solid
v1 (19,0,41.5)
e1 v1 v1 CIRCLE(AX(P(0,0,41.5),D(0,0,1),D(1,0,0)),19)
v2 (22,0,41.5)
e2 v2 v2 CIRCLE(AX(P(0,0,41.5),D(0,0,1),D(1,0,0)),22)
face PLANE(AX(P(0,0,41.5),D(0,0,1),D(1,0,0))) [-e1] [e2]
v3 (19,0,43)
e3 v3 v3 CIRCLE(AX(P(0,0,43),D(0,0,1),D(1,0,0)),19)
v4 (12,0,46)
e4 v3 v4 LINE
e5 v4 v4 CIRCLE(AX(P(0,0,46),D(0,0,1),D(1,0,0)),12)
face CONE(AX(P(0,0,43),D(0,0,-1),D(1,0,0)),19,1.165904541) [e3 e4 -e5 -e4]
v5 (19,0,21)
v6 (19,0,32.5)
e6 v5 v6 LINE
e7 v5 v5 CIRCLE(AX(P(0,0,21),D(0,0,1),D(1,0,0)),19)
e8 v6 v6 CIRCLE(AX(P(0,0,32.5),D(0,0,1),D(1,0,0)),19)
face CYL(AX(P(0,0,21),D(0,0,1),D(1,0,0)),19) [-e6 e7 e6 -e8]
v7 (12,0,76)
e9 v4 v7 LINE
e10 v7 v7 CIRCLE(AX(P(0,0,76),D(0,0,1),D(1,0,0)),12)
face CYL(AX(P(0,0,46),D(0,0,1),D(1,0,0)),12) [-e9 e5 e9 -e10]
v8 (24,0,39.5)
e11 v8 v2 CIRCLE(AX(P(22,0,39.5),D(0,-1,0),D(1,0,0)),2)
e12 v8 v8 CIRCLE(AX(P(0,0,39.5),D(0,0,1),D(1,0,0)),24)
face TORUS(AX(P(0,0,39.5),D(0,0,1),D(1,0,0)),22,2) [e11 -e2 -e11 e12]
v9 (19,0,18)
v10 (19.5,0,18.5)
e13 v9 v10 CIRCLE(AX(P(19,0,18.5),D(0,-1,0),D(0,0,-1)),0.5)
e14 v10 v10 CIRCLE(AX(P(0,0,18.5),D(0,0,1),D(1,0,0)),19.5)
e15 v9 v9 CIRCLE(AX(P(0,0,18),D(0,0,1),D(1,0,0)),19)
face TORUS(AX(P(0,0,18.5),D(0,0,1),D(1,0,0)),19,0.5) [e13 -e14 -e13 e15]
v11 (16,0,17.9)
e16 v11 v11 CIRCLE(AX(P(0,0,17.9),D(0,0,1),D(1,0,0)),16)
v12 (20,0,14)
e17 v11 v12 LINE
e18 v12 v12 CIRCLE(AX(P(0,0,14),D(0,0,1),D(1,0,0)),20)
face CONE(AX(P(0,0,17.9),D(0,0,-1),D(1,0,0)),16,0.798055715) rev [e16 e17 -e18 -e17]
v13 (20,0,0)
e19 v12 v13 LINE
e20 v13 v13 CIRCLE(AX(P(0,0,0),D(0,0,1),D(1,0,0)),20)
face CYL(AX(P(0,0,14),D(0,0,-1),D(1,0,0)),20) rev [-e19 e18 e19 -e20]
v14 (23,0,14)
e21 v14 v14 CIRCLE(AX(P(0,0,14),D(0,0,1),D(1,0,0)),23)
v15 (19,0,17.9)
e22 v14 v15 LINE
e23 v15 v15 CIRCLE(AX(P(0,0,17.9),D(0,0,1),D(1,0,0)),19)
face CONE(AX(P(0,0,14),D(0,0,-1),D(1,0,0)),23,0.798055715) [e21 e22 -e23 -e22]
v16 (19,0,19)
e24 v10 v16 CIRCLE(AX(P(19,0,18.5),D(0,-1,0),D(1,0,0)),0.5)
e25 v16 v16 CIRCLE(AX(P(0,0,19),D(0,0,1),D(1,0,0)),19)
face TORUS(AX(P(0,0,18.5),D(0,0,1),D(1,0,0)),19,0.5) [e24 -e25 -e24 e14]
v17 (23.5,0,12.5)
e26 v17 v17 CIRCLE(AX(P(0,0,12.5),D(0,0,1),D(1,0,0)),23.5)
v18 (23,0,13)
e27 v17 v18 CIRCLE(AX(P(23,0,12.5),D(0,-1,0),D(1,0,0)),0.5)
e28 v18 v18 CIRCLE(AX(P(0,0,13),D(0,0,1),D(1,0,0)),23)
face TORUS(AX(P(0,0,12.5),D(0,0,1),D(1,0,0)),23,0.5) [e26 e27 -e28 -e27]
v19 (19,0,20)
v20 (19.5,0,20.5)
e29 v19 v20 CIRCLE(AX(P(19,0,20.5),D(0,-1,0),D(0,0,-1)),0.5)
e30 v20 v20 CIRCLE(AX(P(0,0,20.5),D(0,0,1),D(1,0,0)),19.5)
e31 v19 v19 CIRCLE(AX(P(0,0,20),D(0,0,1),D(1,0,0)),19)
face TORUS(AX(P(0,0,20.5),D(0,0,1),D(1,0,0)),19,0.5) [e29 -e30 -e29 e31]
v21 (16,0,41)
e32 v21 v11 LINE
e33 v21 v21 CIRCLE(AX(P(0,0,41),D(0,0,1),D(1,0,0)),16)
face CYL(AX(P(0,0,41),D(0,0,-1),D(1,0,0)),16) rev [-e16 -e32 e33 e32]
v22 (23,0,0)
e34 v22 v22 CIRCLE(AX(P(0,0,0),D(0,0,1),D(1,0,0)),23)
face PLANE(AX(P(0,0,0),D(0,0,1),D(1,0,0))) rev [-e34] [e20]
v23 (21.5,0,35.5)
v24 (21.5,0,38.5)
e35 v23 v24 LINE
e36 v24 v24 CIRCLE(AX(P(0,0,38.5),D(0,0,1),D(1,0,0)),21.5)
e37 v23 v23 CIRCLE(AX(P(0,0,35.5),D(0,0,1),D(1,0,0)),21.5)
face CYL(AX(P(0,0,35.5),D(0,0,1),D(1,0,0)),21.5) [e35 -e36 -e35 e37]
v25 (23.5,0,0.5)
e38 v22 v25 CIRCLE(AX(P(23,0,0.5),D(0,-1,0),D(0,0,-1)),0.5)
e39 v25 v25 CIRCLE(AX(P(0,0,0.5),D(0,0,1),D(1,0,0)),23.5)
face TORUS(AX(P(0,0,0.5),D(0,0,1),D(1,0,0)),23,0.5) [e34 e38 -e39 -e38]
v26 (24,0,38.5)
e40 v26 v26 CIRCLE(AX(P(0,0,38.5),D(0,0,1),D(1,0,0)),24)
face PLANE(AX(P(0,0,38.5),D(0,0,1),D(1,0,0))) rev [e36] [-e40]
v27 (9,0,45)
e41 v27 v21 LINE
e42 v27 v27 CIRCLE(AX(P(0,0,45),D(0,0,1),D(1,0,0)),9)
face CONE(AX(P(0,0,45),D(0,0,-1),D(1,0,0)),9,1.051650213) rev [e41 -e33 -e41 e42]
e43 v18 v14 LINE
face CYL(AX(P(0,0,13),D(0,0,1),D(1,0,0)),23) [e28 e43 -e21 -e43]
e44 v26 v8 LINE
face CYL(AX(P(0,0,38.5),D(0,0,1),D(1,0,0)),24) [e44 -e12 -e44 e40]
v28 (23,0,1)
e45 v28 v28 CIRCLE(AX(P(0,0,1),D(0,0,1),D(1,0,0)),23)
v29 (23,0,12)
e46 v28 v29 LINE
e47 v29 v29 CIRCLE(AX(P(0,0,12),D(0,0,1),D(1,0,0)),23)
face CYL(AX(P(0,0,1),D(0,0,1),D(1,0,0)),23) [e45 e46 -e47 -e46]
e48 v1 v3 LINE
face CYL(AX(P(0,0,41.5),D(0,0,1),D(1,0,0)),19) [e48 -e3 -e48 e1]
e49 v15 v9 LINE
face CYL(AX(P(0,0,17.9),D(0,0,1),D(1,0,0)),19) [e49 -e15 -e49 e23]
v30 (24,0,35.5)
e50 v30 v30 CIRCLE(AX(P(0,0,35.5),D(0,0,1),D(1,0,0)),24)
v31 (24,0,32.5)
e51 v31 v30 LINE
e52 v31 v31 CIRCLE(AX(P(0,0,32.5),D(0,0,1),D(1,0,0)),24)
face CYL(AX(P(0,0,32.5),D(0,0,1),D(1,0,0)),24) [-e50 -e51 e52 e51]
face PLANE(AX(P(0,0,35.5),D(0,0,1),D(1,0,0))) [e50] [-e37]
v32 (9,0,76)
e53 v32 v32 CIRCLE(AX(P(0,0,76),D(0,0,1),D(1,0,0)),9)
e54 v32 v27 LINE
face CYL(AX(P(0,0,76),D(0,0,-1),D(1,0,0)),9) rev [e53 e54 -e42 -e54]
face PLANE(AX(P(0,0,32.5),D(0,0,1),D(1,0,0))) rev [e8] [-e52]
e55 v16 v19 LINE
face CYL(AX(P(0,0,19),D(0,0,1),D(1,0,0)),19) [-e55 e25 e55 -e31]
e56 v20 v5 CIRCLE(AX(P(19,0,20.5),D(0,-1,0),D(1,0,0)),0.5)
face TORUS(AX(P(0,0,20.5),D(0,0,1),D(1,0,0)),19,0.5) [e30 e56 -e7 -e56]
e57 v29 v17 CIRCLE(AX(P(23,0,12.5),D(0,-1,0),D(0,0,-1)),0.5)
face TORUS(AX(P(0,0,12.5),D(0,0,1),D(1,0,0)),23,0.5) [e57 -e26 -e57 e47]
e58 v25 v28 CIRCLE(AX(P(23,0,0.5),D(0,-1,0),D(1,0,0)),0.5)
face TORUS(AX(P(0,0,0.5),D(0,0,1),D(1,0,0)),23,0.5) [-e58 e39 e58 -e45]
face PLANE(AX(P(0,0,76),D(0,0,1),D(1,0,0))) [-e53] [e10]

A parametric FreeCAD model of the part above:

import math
import FreeCAD as App
import Part
import Sketcher
Q = App.Units.Quantity

doc = App.newDocument("Part")
body = doc.addObject("PartDesign::Body", "Body")

# Sketch on XZ plane
sketch1 = body.newObject("Sketcher::SketchObject", "Sketch")
sketch1.AttachmentSupport = (doc.getObject("XZ_Plane"), [""])
sketch1.MapMode = "FlatFace"
sketch1.addGeometry([
    Part.ArcOfCircle(Part.Circle(App.Vector(23, 0.5, 0), App.Vector(0, 0, 1), 0.5), math.radians(0), math.radians(90)),  # 0
    Part.LineSegment(App.Vector(23, 1, 0), App.Vector(23, 12, 0)),  # 1
    Part.ArcOfCircle(Part.Circle(App.Vector(23, 12.5, 0), App.Vector(0, 0, 1), 0.5), math.radians(-90), math.radians(0)),  # 2
    Part.ArcOfCircle(Part.Circle(App.Vector(23, 12.5, 0), App.Vector(0, 0, 1), 0.5), math.radians(0), math.radians(90)),  # 3
    Part.LineSegment(App.Vector(23, 13, 0), App.Vector(23, 14, 0)),  # 4
    Part.LineSegment(App.Vector(23, 14, 0), App.Vector(19, 17.9, 0)),  # 5
    Part.LineSegment(App.Vector(19, 17.9, 0), App.Vector(19, 18, 0)),  # 6
    Part.ArcOfCircle(Part.Circle(App.Vector(19, 18.5, 0), App.Vector(0, 0, 1), 0.5), math.radians(-90), math.radians(0)),  # 7
    Part.ArcOfCircle(Part.Circle(App.Vector(19, 18.5, 0), App.Vector(0, 0, 1), 0.5), math.radians(0), math.radians(90)),  # 8
    Part.LineSegment(App.Vector(19, 19, 0), App.Vector(19, 20, 0)),  # 9
    Part.ArcOfCircle(Part.Circle(App.Vector(19, 20.5, 0), App.Vector(0, 0, 1), 0.5), math.radians(-90), math.radians(0)),  # 10
    Part.ArcOfCircle(Part.Circle(App.Vector(19, 20.5, 0), App.Vector(0, 0, 1), 0.5), math.radians(0), math.radians(90)),  # 11
    Part.LineSegment(App.Vector(19, 21, 0), App.Vector(19, 32.5, 0)),  # 12
    Part.LineSegment(App.Vector(19, 32.5, 0), App.Vector(24, 32.5, 0)),  # 13
    Part.LineSegment(App.Vector(24, 32.5, 0), App.Vector(24, 35.5, 0)),  # 14
    Part.LineSegment(App.Vector(24, 35.5, 0), App.Vector(21.5, 35.5, 0)),  # 15
    Part.LineSegment(App.Vector(21.5, 35.5, 0), App.Vector(21.5, 38.5, 0)),  # 16
    Part.LineSegment(App.Vector(21.5, 38.5, 0), App.Vector(24, 38.5, 0)),  # 17
    Part.LineSegment(App.Vector(24, 38.5, 0), App.Vector(24, 39.5, 0)),  # 18
    Part.ArcOfCircle(Part.Circle(App.Vector(22, 39.5, 0), App.Vector(0, 0, 1), 2), math.radians(0), math.radians(90)),  # 19
    Part.LineSegment(App.Vector(22, 41.5, 0), App.Vector(19, 41.5, 0)),  # 20
    Part.LineSegment(App.Vector(19, 41.5, 0), App.Vector(19, 43, 0)),  # 21
    Part.LineSegment(App.Vector(19, 43, 0), App.Vector(12, 46, 0)),  # 22
    Part.LineSegment(App.Vector(12, 46, 0), App.Vector(12, 76, 0)),  # 23
    Part.LineSegment(App.Vector(12, 76, 0), App.Vector(9, 76, 0)),  # 24
    Part.LineSegment(App.Vector(9, 76, 0), App.Vector(9, 45, 0)),  # 25
    Part.LineSegment(App.Vector(9, 45, 0), App.Vector(16, 41, 0)),  # 26
    Part.LineSegment(App.Vector(16, 41, 0), App.Vector(16, 17.9, 0)),  # 27
    Part.LineSegment(App.Vector(16, 17.9, 0), App.Vector(20, 14, 0)),  # 28
    Part.LineSegment(App.Vector(20, 14, 0), App.Vector(20, 0, 0)),  # 29
    Part.LineSegment(App.Vector(20, 0, 0), App.Vector(23, 0, 0)),  # 30
    Part.ArcOfCircle(Part.Circle(App.Vector(23, 0.5, 0), App.Vector(0, 0, 1), 0.5), math.radians(-90), math.radians(0)),  # 31
], False)
sketch1.addConstraint([
    Sketcher.Constraint("Coincident", 0, 2, 1, 1),
    Sketcher.Constraint("Coincident", 1, 2, 2, 1),
    Sketcher.Constraint("Tangent", 2, 2, 3, 1),
    Sketcher.Constraint("Coincident", 3, 2, 4, 1),
    Sketcher.Constraint("Coincident", 4, 2, 5, 1),
    Sketcher.Constraint("Coincident", 5, 2, 6, 1),
    Sketcher.Constraint("Coincident", 6, 2, 7, 1),
    Sketcher.Constraint("Tangent", 7, 2, 8, 1),
    Sketcher.Constraint("Coincident", 8, 2, 9, 1),
    Sketcher.Constraint("Coincident", 9, 2, 10, 1),
    Sketcher.Constraint("Tangent", 10, 2, 11, 1),
    Sketcher.Constraint("Coincident", 11, 2, 12, 1),
    Sketcher.Constraint("Coincident", 12, 2, 13, 1),
    Sketcher.Constraint("Coincident", 13, 2, 14, 1),
    Sketcher.Constraint("Coincident", 14, 2, 15, 1),
    Sketcher.Constraint("Coincident", 15, 2, 16, 1),
    Sketcher.Constraint("Coincident", 16, 2, 17, 1),
    Sketcher.Constraint("Coincident", 17, 2, 18, 1),
    Sketcher.Constraint("Tangent", 18, 2, 19, 1),
    Sketcher.Constraint("Tangent", 19, 2, 20, 1),
    Sketcher.Constraint("Coincident", 20, 2, 21, 1),
    Sketcher.Constraint("Coincident", 21, 2, 22, 1),
    Sketcher.Constraint("Coincident", 22, 2, 23, 1),
    Sketcher.Constraint("Coincident", 23, 2, 24, 1),
    Sketcher.Constraint("Coincident", 24, 2, 25, 1),
    Sketcher.Constraint("Coincident", 25, 2, 26, 1),
    Sketcher.Constraint("Coincident", 26, 2, 27, 1),
    Sketcher.Constraint("Coincident", 27, 2, 28, 1),
    Sketcher.Constraint("Coincident", 28, 2, 29, 1),
    Sketcher.Constraint("Coincident", 29, 2, 30, 1),
    Sketcher.Constraint("Tangent", 30, 2, 31, 1),
    Sketcher.Constraint("Tangent", 31, 2, 0, 1),
    Sketcher.Constraint("Vertical", 1),
    Sketcher.Constraint("Vertical", 4),
    Sketcher.Constraint("Vertical", 6),
    Sketcher.Constraint("Vertical", 9),
    Sketcher.Constraint("Vertical", 12),
    Sketcher.Constraint("Horizontal", 13),
    Sketcher.Constraint("Vertical", 14),
    Sketcher.Constraint("Horizontal", 15),
    Sketcher.Constraint("Vertical", 16),
    Sketcher.Constraint("Horizontal", 17),
    Sketcher.Constraint("Vertical", 18),
    Sketcher.Constraint("Horizontal", 20),
    Sketcher.Constraint("Vertical", 21),
    Sketcher.Constraint("Vertical", 23),
    Sketcher.Constraint("Horizontal", 24),
    Sketcher.Constraint("Vertical", 25),
    Sketcher.Constraint("Vertical", 27),
    Sketcher.Constraint("Vertical", 29),
    Sketcher.Constraint("Horizontal", 30),
    Sketcher.Constraint("Equal", 0, 2),
    Sketcher.Constraint("Equal", 2, 3),
    Sketcher.Constraint("Equal", 3, 7),
    Sketcher.Constraint("Equal", 7, 8),
    Sketcher.Constraint("Equal", 8, 10),
    Sketcher.Constraint("Equal", 10, 11),
    Sketcher.Constraint("Equal", 11, 31),
    Sketcher.Constraint("PointOnObject", 29, 2, -1),
    Sketcher.Constraint("Parallel", 5, 28),
    Sketcher.Constraint("Horizontal", 3, 3, 2, 2),
    Sketcher.Constraint("Horizontal", 8, 3, 7, 2),
    Sketcher.Constraint("Horizontal", 11, 3, 10, 2),
    Sketcher.Constraint("Horizontal", 5, 2, 27, 2),
    Sketcher.Constraint("Horizontal", 4, 2, 28, 2),
    Sketcher.Constraint("Horizontal", 0, 3, 31, 2),
    Sketcher.Constraint("Vertical", 0, 3, 2, 3),
    Sketcher.Constraint("Vertical", 8, 3, 10, 3),
    Sketcher.Constraint("Vertical", 31, 3, 0, 2),
    Sketcher.Constraint("Vertical", 1, 2, 3, 2),
    Sketcher.Constraint("Vertical", 11, 3, 5, 2),
    Sketcher.Constraint("Vertical", 6, 2, 8, 2),
    Sketcher.Constraint("Vertical", 9, 2, 11, 2),
    Sketcher.Constraint("Vertical", 14, 2, 17, 2),
    Sketcher.Constraint("Vertical", 12, 2, 20, 2),
    Sketcher.Constraint("Equal", 20, 24),
    Sketcher.Constraint("Equal", 24, 30),
    Sketcher.Constraint("Equal", 4, 9),
    Sketcher.Constraint("Equal", 30, 14),
    Sketcher.Constraint("Equal", 14, 16),
    Sketcher.Constraint("Equal", 9, 18),
    Sketcher.Constraint("Radius", 19, Q("2 mm")),
    Sketcher.Constraint("Radius", 0, Q("0.5 mm")),
    Sketcher.Constraint("DistanceX", 13, 1, 13, 2, Q("5 mm")),
    Sketcher.Constraint("DistanceY", 1, 1, 1, 2, Q("11 mm")),
    Sketcher.Constraint("DistanceY", 4, 1, 4, 2, Q("1 mm")),
    Sketcher.Constraint("DistanceY", 23, 1, 23, 2, Q("30 mm")),
    Sketcher.Constraint("DistanceY", 25, 2, 25, 1, Q("31 mm")),
    Sketcher.Constraint("DistanceX", 15, 2, 15, 1, Q("2.5 mm")),
    Sketcher.Constraint("DistanceY", 6, 1, 6, 2, Q("0.1 mm")),
    Sketcher.Constraint("DistanceY", 12, 1, 12, 2, Q("11.5 mm")),
    Sketcher.Constraint("DistanceY", 21, 1, 21, 2, Q("1.5 mm")),
    Sketcher.Constraint("DistanceY", 27, 2, 27, 1, Q("23.1 mm")),
    Sketcher.Constraint("DistanceX", -1, 1, 0, 3, Q("23 mm")),
    Sketcher.Constraint("DistanceX", -1, 1, 7, 3, Q("19 mm")),
    Sketcher.Constraint("DistanceY", -1, 1, 6, 2, Q("18 mm")),
    Sketcher.Constraint("DistanceX", -1, 1, 22, 2, Q("12 mm")),
    Sketcher.Constraint("DistanceY", -1, 1, 22, 2, Q("46 mm")),
])
revolution = body.newObject("PartDesign::Revolution", "Revolution")
revolution.Profile = sketch1
revolution.ReferenceAxis = (sketch1, ["V_Axis"])
revolution.Angle = 360

doc.recompute()
